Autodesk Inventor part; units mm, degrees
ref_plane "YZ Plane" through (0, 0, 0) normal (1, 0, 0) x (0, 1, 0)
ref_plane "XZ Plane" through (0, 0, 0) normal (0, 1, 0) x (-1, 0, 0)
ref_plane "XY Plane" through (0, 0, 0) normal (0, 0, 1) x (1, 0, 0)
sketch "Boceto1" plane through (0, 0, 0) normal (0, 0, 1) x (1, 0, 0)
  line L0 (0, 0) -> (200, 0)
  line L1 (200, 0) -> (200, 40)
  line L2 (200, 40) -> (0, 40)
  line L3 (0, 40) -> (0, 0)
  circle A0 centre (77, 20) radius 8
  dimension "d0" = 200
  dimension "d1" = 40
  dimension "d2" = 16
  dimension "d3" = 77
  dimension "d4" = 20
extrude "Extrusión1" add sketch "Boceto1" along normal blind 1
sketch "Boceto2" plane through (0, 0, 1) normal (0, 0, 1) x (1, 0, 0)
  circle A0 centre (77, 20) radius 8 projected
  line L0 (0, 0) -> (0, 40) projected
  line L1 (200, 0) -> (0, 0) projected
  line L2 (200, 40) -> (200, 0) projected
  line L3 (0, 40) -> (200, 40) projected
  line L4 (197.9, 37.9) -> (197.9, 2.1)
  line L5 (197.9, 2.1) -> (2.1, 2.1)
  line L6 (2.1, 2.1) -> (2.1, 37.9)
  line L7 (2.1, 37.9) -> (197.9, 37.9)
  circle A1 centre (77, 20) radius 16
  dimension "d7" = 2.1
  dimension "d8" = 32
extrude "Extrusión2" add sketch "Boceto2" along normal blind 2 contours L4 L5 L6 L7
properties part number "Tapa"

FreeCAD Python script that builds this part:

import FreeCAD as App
import Part
import Sketcher

V = App.Vector
Q = App.Units.Quantity


def add_polygon(sketch, points):
    """Adds a closed chain of lines whose ends are joined by coincident constraints."""
    first, n = sketch.GeometryCount, len(points)
    for a, b in zip(points, points[1:] + points[:1]):
        sketch.addGeometry(Part.LineSegment(App.Vector(*a, 0), App.Vector(*b, 0)), False)
    for i in range(n):
        sketch.addConstraint(Sketcher.Constraint("Coincident", first + i, 2, first + (i + 1) % n, 1))

doc = App.newDocument("Part")
params = doc.addObject("Spreadsheet::Sheet", "Params")
for row, (alias, value) in enumerate([
    ("sketch1_diameter", "16 mm"),
    ("sketch1_width", "200 mm"),
    ("sketch1_height", "40 mm"),
    ("pad1_length", "1 mm"),
    ("sketch2_diameter", "32 mm"),
    ("sketch2_width", "195.8 mm"),
    ("sketch2_height", "35.8 mm"),
    ("pad2_length", "2 mm"),
], start=1):
    params.set(f"A{row}", alias)
    params.set(f"B{row}", "=" + value)
    params.setAlias(f"B{row}", alias)

body = doc.addObject("PartDesign::Body", "Body")

sketch1 = doc.addObject("Sketcher::SketchObject", "Sketch")
body.addObject(sketch1)
sketch1.AttachmentSupport = (doc.XY_Plane, [""])
sketch1.MapMode = "FlatFace"
add_polygon(sketch1, [(0, 40), (0, 0), (200, 0), (200, 40)])
sketch1.addGeometry(Part.Circle(V(77, 20, 0), V(0, 0, 1), 8), False)
sketch1.addConstraint([
    Sketcher.Constraint("Vertical", 0),
    Sketcher.Constraint("Horizontal", 1),
    Sketcher.Constraint("Vertical", 2),
    Sketcher.Constraint("Horizontal", 3),
    Sketcher.Constraint("Coincident", 0, 2, -1, 1),
    Sketcher.Constraint("Diameter", 4, Q("16 mm")),
    Sketcher.Constraint("DistanceX", 1, 1, 1, 2, Q("200 mm")),
    Sketcher.Constraint("DistanceY", 0, 2, 0, 1, Q("40 mm")),
    Sketcher.Constraint("DistanceX", -1, 1, 4, 3, Q("77 mm")),
    Sketcher.Constraint("DistanceY", -1, 1, 4, 3, Q("20 mm")),
])
sketch1.setExpression("Constraints[9]", "Params.sketch1_diameter")
sketch1.setExpression("Constraints[10]", "Params.sketch1_width")
sketch1.setExpression("Constraints[11]", "Params.sketch1_height")
pad1 = doc.addObject("PartDesign::Pad", "Pad")
body.addObject(pad1)
pad1.Profile = sketch1
pad1.setExpression("Length", "Params.pad1_length")

sketch2 = doc.addObject("Sketcher::SketchObject", "Sketch001")
body.addObject(sketch2)
sketch2.AttachmentSupport = (doc.XY_Plane, [""])
sketch2.MapMode = "FlatFace"
sketch2.AttachmentOffset = App.Placement(V(0, 0, 1), App.Rotation())
add_polygon(sketch2, [(198, 2), (198, 38), (2, 38), (2, 2)])
sketch2.addGeometry(Part.Circle(V(77, 20, 0), V(0, 0, 1), 16), False)
sketch2.addConstraint([
    Sketcher.Constraint("Vertical", 0),
    Sketcher.Constraint("Horizontal", 1),
    Sketcher.Constraint("Vertical", 2),
    Sketcher.Constraint("Horizontal", 3),
    Sketcher.Constraint("Diameter", 4, Q("32 mm")),
    Sketcher.Constraint("DistanceX", -1, 1, 1, 2, Q("2.1 mm")),
    Sketcher.Constraint("DistanceY", -1, 1, 2, 2, Q("2.1 mm")),
    Sketcher.Constraint("DistanceX", 1, 2, 1, 1, Q("195.8 mm")),
    Sketcher.Constraint("DistanceY", 0, 1, 0, 2, Q("35.8 mm")),
    Sketcher.Constraint("DistanceX", -1, 1, 4, 3, Q("77 mm")),
    Sketcher.Constraint("DistanceY", -1, 1, 4, 3, Q("20 mm")),
])
sketch2.setExpression("Constraints[8]", "Params.sketch2_diameter")
sketch2.setExpression("Constraints[11]", "Params.sketch2_width")
sketch2.setExpression("Constraints[12]", "Params.sketch2_height")
pad2 = doc.addObject("PartDesign::Pad", "Pad001")
body.addObject(pad2)
pad2.Profile = sketch2
pad2.setExpression("Length", "Params.pad2_length")

doc.recompute()
